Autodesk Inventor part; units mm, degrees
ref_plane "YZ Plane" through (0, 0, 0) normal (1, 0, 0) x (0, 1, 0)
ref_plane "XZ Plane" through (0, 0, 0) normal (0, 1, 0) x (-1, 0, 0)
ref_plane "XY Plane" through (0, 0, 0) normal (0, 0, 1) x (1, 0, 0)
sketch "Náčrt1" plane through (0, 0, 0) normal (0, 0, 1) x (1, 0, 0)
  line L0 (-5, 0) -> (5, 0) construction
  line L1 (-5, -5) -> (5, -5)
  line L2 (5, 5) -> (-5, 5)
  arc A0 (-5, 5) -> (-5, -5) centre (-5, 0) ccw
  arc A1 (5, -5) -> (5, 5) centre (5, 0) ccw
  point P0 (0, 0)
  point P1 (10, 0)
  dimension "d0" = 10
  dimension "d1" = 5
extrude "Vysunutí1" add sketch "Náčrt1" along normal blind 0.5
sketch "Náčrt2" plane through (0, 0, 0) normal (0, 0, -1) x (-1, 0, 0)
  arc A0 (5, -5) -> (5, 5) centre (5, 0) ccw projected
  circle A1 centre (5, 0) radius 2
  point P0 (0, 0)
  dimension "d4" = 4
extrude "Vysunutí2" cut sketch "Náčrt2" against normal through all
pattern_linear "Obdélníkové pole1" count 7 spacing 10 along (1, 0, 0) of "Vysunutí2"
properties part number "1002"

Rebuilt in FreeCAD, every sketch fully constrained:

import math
import FreeCAD as App
import Part
import Sketcher

doc = App.newDocument("Part")
params = doc.addObject("Spreadsheet::Sheet", "Params")
for row, (alias, value) in enumerate([
    ("sketch1_radius", "5 mm"),
    ("sketch1_width", "10 mm"),
    ("pad1_length", "0.5 mm"),
    ("sketch2_diameter", "4 mm"),
    ("linearpattern_pitch", "10 mm"),
], start=1):
    params.set(f"A{row}", alias)
    params.set(f"B{row}", "=" + value)
    params.setAlias(f"B{row}", alias)

body = doc.addObject("PartDesign::Body", "Body")

# Sketch on XY plane
sketch1 = body.newObject("Sketcher::SketchObject", "Sketch")
sketch1.AttachmentSupport = (doc.getObject("XY_Plane"), [""])
sketch1.MapMode = "FlatFace"
sketch1.addGeometry(Part.ArcOfCircle(Part.Circle(App.Vector(-5, 0, 0), App.Vector(0, 0, 1), 5), math.radians(90), math.radians(270)), False)
sketch1.addGeometry(Part.LineSegment(App.Vector(-5, -5, 0), App.Vector(5, -5, 0)), False)
sketch1.addGeometry(Part.ArcOfCircle(Part.Circle(App.Vector(5, 0, 0), App.Vector(0, 0, 1), 5), math.radians(-90), math.radians(90)), False)
sketch1.addGeometry(Part.LineSegment(App.Vector(5, 5, 0), App.Vector(-5, 5, 0)), False)
sketch1.addConstraint(Sketcher.Constraint("Tangent", 0, 2, 1, 1))
sketch1.addConstraint(Sketcher.Constraint("Tangent", 1, 2, 2, 1))
sketch1.addConstraint(Sketcher.Constraint("Tangent", 2, 2, 3, 1))
sketch1.addConstraint(Sketcher.Constraint("Tangent", 3, 2, 0, 1))
sketch1.addConstraint(Sketcher.Constraint("Horizontal", 1))
sketch1.addConstraint(Sketcher.Constraint("Horizontal", 3))
sketch1.addConstraint(Sketcher.Constraint("Symmetric", 0, 3, 2, 3, -1, 1))
sketch1.addConstraint(Sketcher.Constraint("Radius", 0, 5.0))
sketch1.addConstraint(Sketcher.Constraint("DistanceX", 1, 1, 1, 2, 10.0))
sketch1.setExpression("Constraints[7]", "Params.sketch1_radius")
sketch1.setExpression("Constraints[8]", "Params.sketch1_width")
pad1 = body.newObject("PartDesign::Pad", "Pad")
pad1.Profile = sketch1
pad1.setExpression("Length", "Params.pad1_length")

# Sketch on XY plane
sketch2 = body.newObject("Sketcher::SketchObject", "Sketch001")
sketch2.AttachmentSupport = (doc.getObject("XY_Plane"), [""])
sketch2.MapMode = "FlatFace"
sketch2.addGeometry(Part.Circle(App.Vector(-5, 0, 0), App.Vector(0, 0, 1), 2), False)
sketch2.addConstraint(Sketcher.Constraint("PointOnObject", 0, 3, -1))
sketch2.addConstraint(Sketcher.Constraint("Diameter", 0, 4.0))
sketch2.addConstraint(Sketcher.Constraint("DistanceX", 0, 3, -1, 1, 5.0))
sketch2.setExpression("Constraints[1]", "Params.sketch2_diameter")
pocket1 = body.newObject("PartDesign::Pocket", "Pocket")
pocket1.Profile = sketch2
pocket1.Type = "ThroughAll"
pocket1.Reversed = True
doc.recompute()

linearpattern = body.newObject("PartDesign::LinearPattern", "LinearPattern")
linearpattern.Originals = [pocket1]
linearpattern.Direction = (doc.getObject("X_Axis"), [""])
linearpattern.Mode = "offset"
linearpattern.setExpression("Offset", "Params.linearpattern_pitch")
linearpattern.Occurrences = 7
body.Tip = linearpattern

doc.recompute()
